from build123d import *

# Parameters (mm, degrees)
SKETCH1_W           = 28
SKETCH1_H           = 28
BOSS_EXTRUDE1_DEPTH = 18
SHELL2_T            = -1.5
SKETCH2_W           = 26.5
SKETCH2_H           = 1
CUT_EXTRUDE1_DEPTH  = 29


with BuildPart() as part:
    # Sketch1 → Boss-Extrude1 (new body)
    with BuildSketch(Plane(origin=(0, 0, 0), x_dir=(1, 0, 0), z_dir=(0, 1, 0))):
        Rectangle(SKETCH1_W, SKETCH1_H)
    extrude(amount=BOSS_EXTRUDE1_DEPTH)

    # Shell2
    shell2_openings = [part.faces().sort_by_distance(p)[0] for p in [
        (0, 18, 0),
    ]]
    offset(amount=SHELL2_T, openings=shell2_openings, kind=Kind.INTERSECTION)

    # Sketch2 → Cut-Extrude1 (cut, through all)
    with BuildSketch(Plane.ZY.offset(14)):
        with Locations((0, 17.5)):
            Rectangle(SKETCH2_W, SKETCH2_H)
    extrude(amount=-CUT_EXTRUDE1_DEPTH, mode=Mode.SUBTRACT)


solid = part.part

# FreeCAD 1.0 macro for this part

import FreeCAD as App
import Part
import Sketcher


def faces_at(feature, points):
    """Names of the faces that lie closest to the given points."""
    faces = feature.Shape.Faces
    near = lambda p: min(range(len(faces)), key=lambda i: faces[i].distToShape(Part.Vertex(*p))[0])
    return sorted({f"Face{near(p) + 1}" for p in points})


def add_polygon(sketch, points):
    """Adds a closed chain of lines whose ends are joined by coincident constraints."""
    first, n = sketch.GeometryCount, len(points)
    for a, b in zip(points, points[1:] + points[:1]):
        sketch.addGeometry(Part.LineSegment(App.Vector(*a, 0), App.Vector(*b, 0)), False)
    for i in range(n):
        sketch.addConstraint(Sketcher.Constraint("Coincident", first + i, 2, first + (i + 1) % n, 1))

doc = App.newDocument("Part")
body = doc.addObject("PartDesign::Body", "Body")

sketch1 = doc.addObject("Sketcher::SketchObject", "Sketch")
body.addObject(sketch1)
sketch1.AttachmentSupport = (doc.XZ_Plane, [""])
sketch1.MapMode = "FlatFace"
add_polygon(sketch1, [(-14, -14), (-14, 14), (14, 14), (14, -14)])
sketch1.addConstraint(Sketcher.Constraint("Vertical", 0))
sketch1.addConstraint(Sketcher.Constraint("Horizontal", 1))
sketch1.addConstraint(Sketcher.Constraint("Vertical", 2))
sketch1.addConstraint(Sketcher.Constraint("Horizontal", 3))
sketch1.addConstraint(Sketcher.Constraint("Symmetric", 0, 2, 2, 2, -1, 1))
sketch1.addConstraint(Sketcher.Constraint("Equal", 3, 0))
sketch1.addConstraint(Sketcher.Constraint("DistanceX", 1, 1, 1, 2, 28.0))
pad1 = doc.addObject("PartDesign::Pad", "Pad")
body.addObject(pad1)
pad1.Profile = sketch1
pad1.Length = 18
pad1.Reversed = True
doc.recompute()

thickness = doc.addObject("PartDesign::Thickness", "Thickness")
body.addObject(thickness)
thickness.Base = (pad1, faces_at(pad1, [(0, 18, 0)]))
thickness.Value = 1.5
thickness.Reversed = True
thickness.Join = "Intersection"

sketch2 = doc.addObject("Sketcher::SketchObject", "Sketch001")
body.addObject(sketch2)
sketch2.AttachmentSupport = (doc.YZ_Plane, [""])
sketch2.MapMode = "FlatFace"
sketch2.AttachmentOffset = App.Placement(App.Vector(0, 0, -14), App.Rotation())
add_polygon(sketch2, [(18, -13.25), (17, -13.25), (17, 13.25), (18, 13.25)])
sketch2.addConstraint(Sketcher.Constraint("Horizontal", 0))
sketch2.addConstraint(Sketcher.Constraint("Vertical", 1))
sketch2.addConstraint(Sketcher.Constraint("Horizontal", 2))
sketch2.addConstraint(Sketcher.Constraint("Vertical", 3))
sketch2.addConstraint(Sketcher.Constraint("DistanceX", 0, 2, 0, 1, 1.0))
sketch2.addConstraint(Sketcher.Constraint("DistanceY", 1, 1, 1, 2, 26.5))
sketch2.addConstraint(Sketcher.Constraint("DistanceX", -1, 1, 0, 2, 17.0))
sketch2.addConstraint(Sketcher.Constraint("DistanceY", 0, 2, -1, 1, 13.25))
pocket1 = doc.addObject("PartDesign::Pocket", "Pocket")
body.addObject(pocket1)
pocket1.Profile = sketch2
pocket1.Type = "ThroughAll"
pocket1.Reversed = True

doc.recompute()
